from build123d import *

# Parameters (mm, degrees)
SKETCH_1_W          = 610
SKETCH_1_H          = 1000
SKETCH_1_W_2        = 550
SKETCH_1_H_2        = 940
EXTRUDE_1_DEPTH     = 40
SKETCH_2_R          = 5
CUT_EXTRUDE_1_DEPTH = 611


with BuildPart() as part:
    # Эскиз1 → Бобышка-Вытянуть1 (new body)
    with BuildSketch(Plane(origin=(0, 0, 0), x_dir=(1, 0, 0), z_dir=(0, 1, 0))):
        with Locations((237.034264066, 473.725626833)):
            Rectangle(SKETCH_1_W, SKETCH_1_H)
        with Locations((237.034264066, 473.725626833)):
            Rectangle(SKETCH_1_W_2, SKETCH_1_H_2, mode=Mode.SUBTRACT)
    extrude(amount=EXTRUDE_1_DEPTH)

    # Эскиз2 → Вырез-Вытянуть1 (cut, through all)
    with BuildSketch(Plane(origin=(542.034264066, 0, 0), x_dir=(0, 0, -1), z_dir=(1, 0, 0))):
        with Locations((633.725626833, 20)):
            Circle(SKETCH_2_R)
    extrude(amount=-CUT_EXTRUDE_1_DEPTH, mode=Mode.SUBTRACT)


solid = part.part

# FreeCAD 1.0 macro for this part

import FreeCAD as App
import Part
import Sketcher
from FreeCAD import Vector

doc = App.newDocument("Part")
params = doc.addObject("Spreadsheet::Sheet", "Params")
for row, (alias, value) in enumerate([
    ("sketch1_width", "610 mm"),
    ("sketch1_width2", "550 mm"),
    ("sketch1_height", "1000 mm"),
    ("sketch1_height2", "940 mm"),
    ("pad1_length", "40 mm"),
    ("sketch2_diameter", "10 mm"),
], start=1):
    params.set(f"A{row}", alias)
    params.set(f"B{row}", "=" + value)
    params.setAlias(f"B{row}", alias)

body = doc.addObject("PartDesign::Body", "Body")

# Sketch on XZ plane
sketch1 = body.newObject("Sketcher::SketchObject", "Sketch")
sketch1.AttachmentSupport = (doc.getObject("XZ_Plane"), [""])
sketch1.MapMode = "FlatFace"
sketch1.addGeometry(Part.LineSegment(Vector(-68, -974, 0), Vector(-68, 26, 0)), False)
sketch1.addGeometry(Part.LineSegment(Vector(-68, 26, 0), Vector(542, 26, 0)), False)
sketch1.addGeometry(Part.LineSegment(Vector(542, 26, 0), Vector(542, -974, 0)), False)
sketch1.addGeometry(Part.LineSegment(Vector(542, -974, 0), Vector(-68, -974, 0)), False)
sketch1.addGeometry(Part.LineSegment(Vector(512, -4, 0), Vector(-38, -4, 0)), False)
sketch1.addGeometry(Part.LineSegment(Vector(-38, -4, 0), Vector(-38, -944, 0)), False)
sketch1.addGeometry(Part.LineSegment(Vector(-38, -944, 0), Vector(512, -944, 0)), False)
sketch1.addGeometry(Part.LineSegment(Vector(512, -944, 0), Vector(512, -4, 0)), False)
sketch1.addConstraint(Sketcher.Constraint("Coincident", 0, 2, 1, 1))
sketch1.addConstraint(Sketcher.Constraint("Coincident", 1, 2, 2, 1))
sketch1.addConstraint(Sketcher.Constraint("Coincident", 2, 2, 3, 1))
sketch1.addConstraint(Sketcher.Constraint("Coincident", 3, 2, 0, 1))
sketch1.addConstraint(Sketcher.Constraint("Coincident", 4, 2, 5, 1))
sketch1.addConstraint(Sketcher.Constraint("Coincident", 5, 2, 6, 1))
sketch1.addConstraint(Sketcher.Constraint("Coincident", 6, 2, 7, 1))
sketch1.addConstraint(Sketcher.Constraint("Coincident", 7, 2, 4, 1))
sketch1.addConstraint(Sketcher.Constraint("Vertical", 0))
sketch1.addConstraint(Sketcher.Constraint("Horizontal", 1))
sketch1.addConstraint(Sketcher.Constraint("Vertical", 2))
sketch1.addConstraint(Sketcher.Constraint("Horizontal", 3))
sketch1.addConstraint(Sketcher.Constraint("Horizontal", 4))
sketch1.addConstraint(Sketcher.Constraint("Vertical", 5))
sketch1.addConstraint(Sketcher.Constraint("Horizontal", 6))
sketch1.addConstraint(Sketcher.Constraint("Vertical", 7))
sketch1.addConstraint(Sketcher.Constraint("DistanceX", 1, 1, 1, 2, 610.0))
sketch1.addConstraint(Sketcher.Constraint("DistanceX", 4, 2, 4, 1, 550.0))
sketch1.addConstraint(Sketcher.Constraint("DistanceY", 0, 1, 0, 2, 1000.0))
sketch1.addConstraint(Sketcher.Constraint("DistanceY", 5, 2, 5, 1, 940.0))
sketch1.addConstraint(Sketcher.Constraint("DistanceX", 0, 2, 4, 2, 30.0))
sketch1.addConstraint(Sketcher.Constraint("DistanceY", 4, 2, 0, 2, 30.0))
sketch1.addConstraint(Sketcher.Constraint("DistanceX", 0, 2, -1, 1, 67.965736))
sketch1.addConstraint(Sketcher.Constraint("DistanceY", -1, 1, 0, 2, 26.274373))
sketch1.setExpression("Constraints[16]", "Params.sketch1_width")
sketch1.setExpression("Constraints[17]", "Params.sketch1_width2")
sketch1.setExpression("Constraints[18]", "Params.sketch1_height")
sketch1.setExpression("Constraints[19]", "Params.sketch1_height2")
pad1 = body.newObject("PartDesign::Pad", "Pad")
pad1.Profile = sketch1
pad1.setExpression("Length", "Params.pad1_length")
pad1.Reversed = True

# Sketch on YZ plane
sketch2 = body.newObject("Sketcher::SketchObject", "Sketch001")
sketch2.AttachmentSupport = (doc.getObject("YZ_Plane"), [""])
sketch2.MapMode = "FlatFace"
sketch2.AttachmentOffset = App.Placement(Vector(0, 0, 542.034264), App.Rotation())
sketch2.addGeometry(Part.Circle(Vector(20, -634, 0), Vector(0, 0, 1), 5), False)
sketch2.addConstraint(Sketcher.Constraint("Diameter", 0, 10.0))
sketch2.addConstraint(Sketcher.Constraint("DistanceX", -1, 1, 0, 3, 20.0))
sketch2.addConstraint(Sketcher.Constraint("DistanceY", 0, 3, -1, 1, 633.725627))
sketch2.setExpression("Constraints[0]", "Params.sketch2_diameter")
pocket1 = body.newObject("PartDesign::Pocket", "Pocket")
pocket1.Profile = sketch2
pocket1.Type = "ThroughAll"

doc.recompute()
